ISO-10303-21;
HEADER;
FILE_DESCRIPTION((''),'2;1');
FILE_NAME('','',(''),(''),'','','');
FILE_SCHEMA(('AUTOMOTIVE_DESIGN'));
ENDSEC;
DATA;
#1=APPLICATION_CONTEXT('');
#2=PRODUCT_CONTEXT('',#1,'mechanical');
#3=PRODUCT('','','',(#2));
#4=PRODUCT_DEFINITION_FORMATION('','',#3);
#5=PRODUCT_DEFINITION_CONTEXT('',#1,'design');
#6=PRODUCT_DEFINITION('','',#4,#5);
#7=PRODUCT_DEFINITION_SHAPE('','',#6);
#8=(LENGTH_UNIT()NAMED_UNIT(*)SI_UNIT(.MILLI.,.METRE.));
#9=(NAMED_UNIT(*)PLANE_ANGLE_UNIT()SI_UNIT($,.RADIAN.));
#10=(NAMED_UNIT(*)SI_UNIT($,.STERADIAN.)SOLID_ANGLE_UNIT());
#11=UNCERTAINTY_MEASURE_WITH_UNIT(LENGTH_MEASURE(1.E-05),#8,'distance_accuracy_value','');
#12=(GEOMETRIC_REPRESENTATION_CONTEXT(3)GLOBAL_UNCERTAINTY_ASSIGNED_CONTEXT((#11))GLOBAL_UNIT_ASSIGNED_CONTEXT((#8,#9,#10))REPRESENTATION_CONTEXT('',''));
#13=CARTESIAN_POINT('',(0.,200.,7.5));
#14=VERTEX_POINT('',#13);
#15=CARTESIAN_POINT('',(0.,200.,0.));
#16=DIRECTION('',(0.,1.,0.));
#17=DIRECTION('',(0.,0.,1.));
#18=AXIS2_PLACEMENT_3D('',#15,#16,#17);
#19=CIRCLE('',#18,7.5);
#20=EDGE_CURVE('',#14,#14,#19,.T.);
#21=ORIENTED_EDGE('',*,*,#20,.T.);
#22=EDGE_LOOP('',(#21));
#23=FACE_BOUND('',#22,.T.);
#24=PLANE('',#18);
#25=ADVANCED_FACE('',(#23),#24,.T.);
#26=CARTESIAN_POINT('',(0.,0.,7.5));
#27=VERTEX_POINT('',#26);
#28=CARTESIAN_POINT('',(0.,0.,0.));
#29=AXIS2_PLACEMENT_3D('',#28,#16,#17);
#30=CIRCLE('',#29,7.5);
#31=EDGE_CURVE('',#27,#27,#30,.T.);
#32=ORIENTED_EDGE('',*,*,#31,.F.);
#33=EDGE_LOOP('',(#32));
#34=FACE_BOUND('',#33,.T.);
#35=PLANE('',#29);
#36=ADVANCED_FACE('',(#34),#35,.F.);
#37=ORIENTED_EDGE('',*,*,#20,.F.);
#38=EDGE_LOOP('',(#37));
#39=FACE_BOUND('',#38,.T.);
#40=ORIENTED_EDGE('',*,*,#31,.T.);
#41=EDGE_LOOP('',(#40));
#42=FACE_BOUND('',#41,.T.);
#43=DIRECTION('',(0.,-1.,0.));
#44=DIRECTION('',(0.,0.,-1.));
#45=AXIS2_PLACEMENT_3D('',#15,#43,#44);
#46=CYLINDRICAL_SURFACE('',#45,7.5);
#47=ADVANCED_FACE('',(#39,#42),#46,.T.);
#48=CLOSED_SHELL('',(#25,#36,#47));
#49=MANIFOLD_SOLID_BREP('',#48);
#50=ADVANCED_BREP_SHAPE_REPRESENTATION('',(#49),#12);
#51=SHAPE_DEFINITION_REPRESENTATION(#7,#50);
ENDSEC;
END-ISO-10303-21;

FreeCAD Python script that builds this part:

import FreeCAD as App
import Part
import Sketcher

doc = App.newDocument("Part")
params = doc.addObject("Spreadsheet::Sheet", "Params")
for row, (alias, value) in enumerate([
    ("sketch1_diameter", "15 mm"),
    ("pad1_length", "200 mm"),
], start=1):
    params.set(f"A{row}", alias)
    params.set(f"B{row}", "=" + value)
    params.setAlias(f"B{row}", alias)

body = doc.addObject("PartDesign::Body", "Body")

sketch1 = body.newObject("Sketcher::SketchObject", "Sketch")
sketch1.AttachmentSupport = (doc.getObject("XZ_Plane"), [""])
sketch1.MapMode = "FlatFace"
sketch1.addGeometry(Part.Circle(App.Vector(0, 0, 0), App.Vector(0, 0, 1), 8), False)
sketch1.addConstraint(Sketcher.Constraint("Coincident", 0, 3, -1, 1))
sketch1.addConstraint(Sketcher.Constraint("Diameter", 0, 15.0))
sketch1.setExpression("Constraints[1]", "Params.sketch1_diameter")
pad1 = body.newObject("PartDesign::Pad", "Pad")
pad1.Profile = sketch1
pad1.setExpression("Length", "Params.pad1_length")
pad1.Reversed = True

doc.recompute()
